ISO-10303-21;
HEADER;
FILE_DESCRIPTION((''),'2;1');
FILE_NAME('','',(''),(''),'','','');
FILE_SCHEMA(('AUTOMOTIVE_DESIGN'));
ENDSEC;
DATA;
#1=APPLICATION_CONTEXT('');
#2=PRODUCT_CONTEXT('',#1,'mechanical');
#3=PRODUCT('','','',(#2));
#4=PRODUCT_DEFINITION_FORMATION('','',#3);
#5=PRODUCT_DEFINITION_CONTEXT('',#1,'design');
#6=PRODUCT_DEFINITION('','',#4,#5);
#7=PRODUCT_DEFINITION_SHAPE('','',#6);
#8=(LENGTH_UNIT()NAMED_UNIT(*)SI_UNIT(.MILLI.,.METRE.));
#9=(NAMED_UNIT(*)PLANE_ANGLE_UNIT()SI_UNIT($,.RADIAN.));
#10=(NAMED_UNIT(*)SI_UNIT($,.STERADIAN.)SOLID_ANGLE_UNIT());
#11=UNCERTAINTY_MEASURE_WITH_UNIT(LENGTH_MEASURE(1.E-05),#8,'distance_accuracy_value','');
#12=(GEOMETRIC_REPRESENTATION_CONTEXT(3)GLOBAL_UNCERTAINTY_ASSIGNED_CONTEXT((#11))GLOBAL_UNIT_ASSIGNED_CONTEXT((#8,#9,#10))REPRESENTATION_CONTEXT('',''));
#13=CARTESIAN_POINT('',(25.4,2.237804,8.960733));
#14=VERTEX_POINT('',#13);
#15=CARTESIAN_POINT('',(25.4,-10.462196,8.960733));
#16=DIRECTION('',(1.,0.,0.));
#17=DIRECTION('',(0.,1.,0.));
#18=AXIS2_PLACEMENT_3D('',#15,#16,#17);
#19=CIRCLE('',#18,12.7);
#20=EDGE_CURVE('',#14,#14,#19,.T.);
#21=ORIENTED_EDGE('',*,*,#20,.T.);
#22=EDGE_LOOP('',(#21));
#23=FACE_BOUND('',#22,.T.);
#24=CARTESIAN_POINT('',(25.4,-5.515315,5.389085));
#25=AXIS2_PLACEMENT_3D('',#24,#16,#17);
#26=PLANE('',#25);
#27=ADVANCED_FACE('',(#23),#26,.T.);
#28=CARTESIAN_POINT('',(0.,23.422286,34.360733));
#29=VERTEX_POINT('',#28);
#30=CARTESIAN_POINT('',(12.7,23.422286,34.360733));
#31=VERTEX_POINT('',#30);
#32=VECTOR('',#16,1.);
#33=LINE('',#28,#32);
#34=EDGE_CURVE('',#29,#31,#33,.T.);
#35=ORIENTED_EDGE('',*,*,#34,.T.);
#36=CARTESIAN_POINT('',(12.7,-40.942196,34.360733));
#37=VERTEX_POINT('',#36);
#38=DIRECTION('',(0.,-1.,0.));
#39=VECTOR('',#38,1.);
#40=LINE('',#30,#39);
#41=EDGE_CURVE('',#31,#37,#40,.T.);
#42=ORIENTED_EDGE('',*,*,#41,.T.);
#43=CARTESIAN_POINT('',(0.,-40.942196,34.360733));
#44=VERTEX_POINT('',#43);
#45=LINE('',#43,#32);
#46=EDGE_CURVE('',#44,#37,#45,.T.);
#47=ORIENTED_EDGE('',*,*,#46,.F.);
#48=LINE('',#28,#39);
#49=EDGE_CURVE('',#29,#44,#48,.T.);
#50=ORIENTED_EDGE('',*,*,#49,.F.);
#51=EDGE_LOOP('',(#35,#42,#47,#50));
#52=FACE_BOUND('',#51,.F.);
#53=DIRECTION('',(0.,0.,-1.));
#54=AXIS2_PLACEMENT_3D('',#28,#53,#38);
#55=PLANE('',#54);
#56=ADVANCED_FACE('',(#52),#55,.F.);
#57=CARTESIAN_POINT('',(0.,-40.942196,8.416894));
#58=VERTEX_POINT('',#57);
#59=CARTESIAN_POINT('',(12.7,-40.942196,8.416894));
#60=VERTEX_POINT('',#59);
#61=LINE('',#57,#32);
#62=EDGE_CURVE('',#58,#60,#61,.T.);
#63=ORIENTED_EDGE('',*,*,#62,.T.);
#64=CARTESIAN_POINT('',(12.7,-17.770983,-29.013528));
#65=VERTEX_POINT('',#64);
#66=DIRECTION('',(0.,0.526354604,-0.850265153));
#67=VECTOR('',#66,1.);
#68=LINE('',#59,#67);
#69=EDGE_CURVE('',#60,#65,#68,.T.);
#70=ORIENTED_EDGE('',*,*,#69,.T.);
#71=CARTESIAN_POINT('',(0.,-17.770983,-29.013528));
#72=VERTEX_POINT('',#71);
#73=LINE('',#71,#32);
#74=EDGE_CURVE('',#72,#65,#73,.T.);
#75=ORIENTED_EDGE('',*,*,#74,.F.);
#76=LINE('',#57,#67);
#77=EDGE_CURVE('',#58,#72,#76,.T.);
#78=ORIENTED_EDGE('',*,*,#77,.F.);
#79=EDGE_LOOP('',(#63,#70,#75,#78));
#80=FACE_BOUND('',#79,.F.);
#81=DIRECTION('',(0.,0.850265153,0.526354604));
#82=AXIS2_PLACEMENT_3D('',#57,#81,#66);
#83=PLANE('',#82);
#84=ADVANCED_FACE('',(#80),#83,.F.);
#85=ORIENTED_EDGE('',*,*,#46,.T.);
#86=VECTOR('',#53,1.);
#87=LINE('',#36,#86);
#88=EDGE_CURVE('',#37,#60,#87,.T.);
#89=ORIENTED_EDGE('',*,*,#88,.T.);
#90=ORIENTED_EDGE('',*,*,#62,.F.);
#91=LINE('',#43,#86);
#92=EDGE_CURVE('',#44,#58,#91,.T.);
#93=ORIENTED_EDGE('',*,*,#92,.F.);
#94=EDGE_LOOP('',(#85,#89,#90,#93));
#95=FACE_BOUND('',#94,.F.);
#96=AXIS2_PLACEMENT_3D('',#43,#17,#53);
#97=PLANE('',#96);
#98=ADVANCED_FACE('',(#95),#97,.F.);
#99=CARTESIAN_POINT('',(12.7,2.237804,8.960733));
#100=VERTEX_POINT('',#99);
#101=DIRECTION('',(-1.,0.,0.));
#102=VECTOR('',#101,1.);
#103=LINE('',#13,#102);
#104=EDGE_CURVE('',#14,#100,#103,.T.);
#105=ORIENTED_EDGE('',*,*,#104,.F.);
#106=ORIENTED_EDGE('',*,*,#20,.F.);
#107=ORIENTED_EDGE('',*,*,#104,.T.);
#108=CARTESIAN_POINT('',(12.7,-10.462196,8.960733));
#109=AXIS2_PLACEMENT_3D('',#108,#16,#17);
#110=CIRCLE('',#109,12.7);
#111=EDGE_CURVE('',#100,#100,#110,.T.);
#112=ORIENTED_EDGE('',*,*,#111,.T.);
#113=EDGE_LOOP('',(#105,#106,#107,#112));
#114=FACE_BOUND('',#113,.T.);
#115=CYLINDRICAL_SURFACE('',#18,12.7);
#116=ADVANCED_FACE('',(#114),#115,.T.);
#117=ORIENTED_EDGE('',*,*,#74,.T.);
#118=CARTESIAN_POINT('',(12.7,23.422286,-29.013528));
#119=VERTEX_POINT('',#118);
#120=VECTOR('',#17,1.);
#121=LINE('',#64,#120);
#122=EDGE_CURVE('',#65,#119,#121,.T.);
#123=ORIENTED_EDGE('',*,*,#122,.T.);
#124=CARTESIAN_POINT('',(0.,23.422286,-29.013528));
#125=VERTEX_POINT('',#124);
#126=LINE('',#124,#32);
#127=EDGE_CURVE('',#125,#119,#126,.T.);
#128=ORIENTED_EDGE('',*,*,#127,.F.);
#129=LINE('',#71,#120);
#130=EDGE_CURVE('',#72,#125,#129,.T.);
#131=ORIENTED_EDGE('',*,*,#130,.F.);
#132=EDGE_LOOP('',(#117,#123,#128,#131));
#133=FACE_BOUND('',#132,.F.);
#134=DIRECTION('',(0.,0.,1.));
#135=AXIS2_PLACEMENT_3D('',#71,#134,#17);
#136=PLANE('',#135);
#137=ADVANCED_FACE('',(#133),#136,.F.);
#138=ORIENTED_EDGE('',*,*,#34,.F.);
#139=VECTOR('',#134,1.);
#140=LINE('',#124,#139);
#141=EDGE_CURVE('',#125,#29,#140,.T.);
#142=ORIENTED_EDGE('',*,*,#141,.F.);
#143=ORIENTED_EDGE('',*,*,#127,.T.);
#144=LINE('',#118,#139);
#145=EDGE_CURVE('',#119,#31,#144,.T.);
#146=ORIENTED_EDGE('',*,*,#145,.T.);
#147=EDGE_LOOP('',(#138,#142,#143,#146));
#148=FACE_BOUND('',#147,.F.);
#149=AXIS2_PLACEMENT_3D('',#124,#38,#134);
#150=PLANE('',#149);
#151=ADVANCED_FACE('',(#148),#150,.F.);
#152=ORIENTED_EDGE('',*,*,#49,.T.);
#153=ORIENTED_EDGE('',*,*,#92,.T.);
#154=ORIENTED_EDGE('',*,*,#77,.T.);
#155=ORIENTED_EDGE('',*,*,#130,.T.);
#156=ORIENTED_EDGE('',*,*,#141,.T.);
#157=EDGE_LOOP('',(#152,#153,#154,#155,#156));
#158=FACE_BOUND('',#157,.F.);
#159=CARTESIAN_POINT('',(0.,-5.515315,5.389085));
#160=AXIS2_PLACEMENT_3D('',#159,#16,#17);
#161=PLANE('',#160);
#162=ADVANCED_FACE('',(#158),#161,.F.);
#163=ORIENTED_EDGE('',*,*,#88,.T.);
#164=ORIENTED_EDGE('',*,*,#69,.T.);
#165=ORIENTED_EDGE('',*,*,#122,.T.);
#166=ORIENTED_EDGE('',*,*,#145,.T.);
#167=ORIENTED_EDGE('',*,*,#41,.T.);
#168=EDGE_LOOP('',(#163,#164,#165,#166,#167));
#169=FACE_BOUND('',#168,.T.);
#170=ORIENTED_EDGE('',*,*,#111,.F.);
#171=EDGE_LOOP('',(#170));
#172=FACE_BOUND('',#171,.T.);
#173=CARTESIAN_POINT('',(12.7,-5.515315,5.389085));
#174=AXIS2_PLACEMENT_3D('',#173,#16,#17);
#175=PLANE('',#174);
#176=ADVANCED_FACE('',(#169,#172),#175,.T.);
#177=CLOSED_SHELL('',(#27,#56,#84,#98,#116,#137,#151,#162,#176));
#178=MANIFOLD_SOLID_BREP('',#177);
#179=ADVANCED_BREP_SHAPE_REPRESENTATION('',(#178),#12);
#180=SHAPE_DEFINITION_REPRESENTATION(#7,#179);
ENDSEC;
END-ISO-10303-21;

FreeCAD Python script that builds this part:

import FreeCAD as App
import Part
import Sketcher
Q = App.Units.Quantity

doc = App.newDocument("Part")
body = doc.addObject("PartDesign::Body", "Body")

# Sketch on YZ plane
sketch1 = body.newObject("Sketcher::SketchObject", "Sketch")
sketch1.AttachmentSupport = (doc.getObject("YZ_Plane"), [""])
sketch1.MapMode = "FlatFace"
sketch1.addGeometry([
    Part.LineSegment(App.Vector(-40.942196, 34.360733, 0), App.Vector(-40.942196, 8.416894, 0)),  # 0
    Part.LineSegment(App.Vector(-40.942196, 8.416894, 0), App.Vector(-17.770983, -29.013528, 0)),  # 1
    Part.LineSegment(App.Vector(-17.770983, -29.013528, 0), App.Vector(23.422286, -29.013528, 0)),  # 2
    Part.LineSegment(App.Vector(23.422286, -29.013528, 0), App.Vector(23.422286, 34.360733, 0)),  # 3
    Part.LineSegment(App.Vector(23.422286, 34.360733, 0), App.Vector(-40.942196, 34.360733, 0)),  # 4
], False)
sketch1.addConstraint([
    Sketcher.Constraint("Coincident", 0, 2, 1, 1),
    Sketcher.Constraint("Coincident", 1, 2, 2, 1),
    Sketcher.Constraint("Coincident", 2, 2, 3, 1),
    Sketcher.Constraint("Coincident", 3, 2, 4, 1),
    Sketcher.Constraint("Coincident", 4, 2, 0, 1),
    Sketcher.Constraint("Vertical", 0),
    Sketcher.Constraint("Horizontal", 2),
    Sketcher.Constraint("Vertical", 3),
    Sketcher.Constraint("Horizontal", 4),
    Sketcher.Constraint("DistanceX", 2, 1, 2, 2, Q("41.193269 mm")),
    Sketcher.Constraint("DistanceY", 0, 2, 0, 1, Q("25.943839 mm")),
    Sketcher.Constraint("DistanceY", 3, 1, 3, 2, Q("63.374261 mm")),
    Sketcher.Constraint("Distance", 1, Q("44.022058 mm")),
    Sketcher.Constraint("DistanceY", 1, 2, -1, 1, Q("29.013528 mm")),
    Sketcher.Constraint("DistanceX", 0, 2, -1, 1, Q("40.942196 mm")),
])
pad1 = body.newObject("PartDesign::Pad", "Pad")
pad1.Profile = sketch1
pad1.Length = Q("1 in")

# Sketch on YZ plane
sketch2 = body.newObject("Sketcher::SketchObject", "Sketch001")
sketch2.AttachmentSupport = (doc.getObject("YZ_Plane"), [""])
sketch2.MapMode = "FlatFace"
sketch2.AttachmentOffset = App.Placement(App.Vector(0, 0, 1 * 25.4), App.Rotation())
sketch2.addGeometry([
    Part.LineSegment(App.Vector(23.422286, 34.360733, 0), App.Vector(-40.942196, 34.360733, 0)),  # 0
    Part.LineSegment(App.Vector(-40.942196, 34.360733, 0), App.Vector(-40.942196, 8.416894, 0)),  # 1
    Part.LineSegment(App.Vector(-40.942196, 8.416894, 0), App.Vector(-17.770983, -29.013528, 0)),  # 2
    Part.LineSegment(App.Vector(-17.770983, -29.013528, 0), App.Vector(23.422286, -29.013528, 0)),  # 3
    Part.LineSegment(App.Vector(23.422286, -29.013528, 0), App.Vector(23.422286, 34.360733, 0)),  # 4
    Part.Circle(App.Vector(-10.462196, 8.960733, 0), App.Vector(0, 0, 1), 12.7),  # 5
], False)
sketch2.addConstraint([
    Sketcher.Constraint("Coincident", 0, 2, 1, 1),
    Sketcher.Constraint("Coincident", 1, 2, 2, 1),
    Sketcher.Constraint("Coincident", 2, 2, 3, 1),
    Sketcher.Constraint("Coincident", 3, 2, 4, 1),
    Sketcher.Constraint("Coincident", 4, 2, 0, 1),
    Sketcher.Constraint("Horizontal", 0),
    Sketcher.Constraint("Vertical", 1),
    Sketcher.Constraint("Horizontal", 3),
    Sketcher.Constraint("Vertical", 4),
    Sketcher.Constraint("Diameter", 5, Q("1 in")),
    Sketcher.Constraint("DistanceY", 5, 3, 0, 2, Q("1 in")),
    Sketcher.Constraint("DistanceX", 0, 2, 5, 3, Q("1.2 in")),
    Sketcher.Constraint("DistanceX", 3, 1, 3, 2, Q("41.193269 mm")),
    Sketcher.Constraint("DistanceY", 1, 2, 1, 1, Q("25.943839 mm")),
    Sketcher.Constraint("DistanceY", 4, 1, 4, 2, Q("63.374261 mm")),
    Sketcher.Constraint("Distance", 2, Q("44.022058 mm")),
    Sketcher.Constraint("DistanceY", 2, 2, -1, 1, Q("29.013528 mm")),
    Sketcher.Constraint("DistanceX", 5, 3, -1, 1, Q("10.462196 mm")),
])
pocket1 = body.newObject("PartDesign::Pocket", "Pocket")
pocket1.Profile = sketch2
pocket1.Length = Q("0.5 in")

doc.recompute()
